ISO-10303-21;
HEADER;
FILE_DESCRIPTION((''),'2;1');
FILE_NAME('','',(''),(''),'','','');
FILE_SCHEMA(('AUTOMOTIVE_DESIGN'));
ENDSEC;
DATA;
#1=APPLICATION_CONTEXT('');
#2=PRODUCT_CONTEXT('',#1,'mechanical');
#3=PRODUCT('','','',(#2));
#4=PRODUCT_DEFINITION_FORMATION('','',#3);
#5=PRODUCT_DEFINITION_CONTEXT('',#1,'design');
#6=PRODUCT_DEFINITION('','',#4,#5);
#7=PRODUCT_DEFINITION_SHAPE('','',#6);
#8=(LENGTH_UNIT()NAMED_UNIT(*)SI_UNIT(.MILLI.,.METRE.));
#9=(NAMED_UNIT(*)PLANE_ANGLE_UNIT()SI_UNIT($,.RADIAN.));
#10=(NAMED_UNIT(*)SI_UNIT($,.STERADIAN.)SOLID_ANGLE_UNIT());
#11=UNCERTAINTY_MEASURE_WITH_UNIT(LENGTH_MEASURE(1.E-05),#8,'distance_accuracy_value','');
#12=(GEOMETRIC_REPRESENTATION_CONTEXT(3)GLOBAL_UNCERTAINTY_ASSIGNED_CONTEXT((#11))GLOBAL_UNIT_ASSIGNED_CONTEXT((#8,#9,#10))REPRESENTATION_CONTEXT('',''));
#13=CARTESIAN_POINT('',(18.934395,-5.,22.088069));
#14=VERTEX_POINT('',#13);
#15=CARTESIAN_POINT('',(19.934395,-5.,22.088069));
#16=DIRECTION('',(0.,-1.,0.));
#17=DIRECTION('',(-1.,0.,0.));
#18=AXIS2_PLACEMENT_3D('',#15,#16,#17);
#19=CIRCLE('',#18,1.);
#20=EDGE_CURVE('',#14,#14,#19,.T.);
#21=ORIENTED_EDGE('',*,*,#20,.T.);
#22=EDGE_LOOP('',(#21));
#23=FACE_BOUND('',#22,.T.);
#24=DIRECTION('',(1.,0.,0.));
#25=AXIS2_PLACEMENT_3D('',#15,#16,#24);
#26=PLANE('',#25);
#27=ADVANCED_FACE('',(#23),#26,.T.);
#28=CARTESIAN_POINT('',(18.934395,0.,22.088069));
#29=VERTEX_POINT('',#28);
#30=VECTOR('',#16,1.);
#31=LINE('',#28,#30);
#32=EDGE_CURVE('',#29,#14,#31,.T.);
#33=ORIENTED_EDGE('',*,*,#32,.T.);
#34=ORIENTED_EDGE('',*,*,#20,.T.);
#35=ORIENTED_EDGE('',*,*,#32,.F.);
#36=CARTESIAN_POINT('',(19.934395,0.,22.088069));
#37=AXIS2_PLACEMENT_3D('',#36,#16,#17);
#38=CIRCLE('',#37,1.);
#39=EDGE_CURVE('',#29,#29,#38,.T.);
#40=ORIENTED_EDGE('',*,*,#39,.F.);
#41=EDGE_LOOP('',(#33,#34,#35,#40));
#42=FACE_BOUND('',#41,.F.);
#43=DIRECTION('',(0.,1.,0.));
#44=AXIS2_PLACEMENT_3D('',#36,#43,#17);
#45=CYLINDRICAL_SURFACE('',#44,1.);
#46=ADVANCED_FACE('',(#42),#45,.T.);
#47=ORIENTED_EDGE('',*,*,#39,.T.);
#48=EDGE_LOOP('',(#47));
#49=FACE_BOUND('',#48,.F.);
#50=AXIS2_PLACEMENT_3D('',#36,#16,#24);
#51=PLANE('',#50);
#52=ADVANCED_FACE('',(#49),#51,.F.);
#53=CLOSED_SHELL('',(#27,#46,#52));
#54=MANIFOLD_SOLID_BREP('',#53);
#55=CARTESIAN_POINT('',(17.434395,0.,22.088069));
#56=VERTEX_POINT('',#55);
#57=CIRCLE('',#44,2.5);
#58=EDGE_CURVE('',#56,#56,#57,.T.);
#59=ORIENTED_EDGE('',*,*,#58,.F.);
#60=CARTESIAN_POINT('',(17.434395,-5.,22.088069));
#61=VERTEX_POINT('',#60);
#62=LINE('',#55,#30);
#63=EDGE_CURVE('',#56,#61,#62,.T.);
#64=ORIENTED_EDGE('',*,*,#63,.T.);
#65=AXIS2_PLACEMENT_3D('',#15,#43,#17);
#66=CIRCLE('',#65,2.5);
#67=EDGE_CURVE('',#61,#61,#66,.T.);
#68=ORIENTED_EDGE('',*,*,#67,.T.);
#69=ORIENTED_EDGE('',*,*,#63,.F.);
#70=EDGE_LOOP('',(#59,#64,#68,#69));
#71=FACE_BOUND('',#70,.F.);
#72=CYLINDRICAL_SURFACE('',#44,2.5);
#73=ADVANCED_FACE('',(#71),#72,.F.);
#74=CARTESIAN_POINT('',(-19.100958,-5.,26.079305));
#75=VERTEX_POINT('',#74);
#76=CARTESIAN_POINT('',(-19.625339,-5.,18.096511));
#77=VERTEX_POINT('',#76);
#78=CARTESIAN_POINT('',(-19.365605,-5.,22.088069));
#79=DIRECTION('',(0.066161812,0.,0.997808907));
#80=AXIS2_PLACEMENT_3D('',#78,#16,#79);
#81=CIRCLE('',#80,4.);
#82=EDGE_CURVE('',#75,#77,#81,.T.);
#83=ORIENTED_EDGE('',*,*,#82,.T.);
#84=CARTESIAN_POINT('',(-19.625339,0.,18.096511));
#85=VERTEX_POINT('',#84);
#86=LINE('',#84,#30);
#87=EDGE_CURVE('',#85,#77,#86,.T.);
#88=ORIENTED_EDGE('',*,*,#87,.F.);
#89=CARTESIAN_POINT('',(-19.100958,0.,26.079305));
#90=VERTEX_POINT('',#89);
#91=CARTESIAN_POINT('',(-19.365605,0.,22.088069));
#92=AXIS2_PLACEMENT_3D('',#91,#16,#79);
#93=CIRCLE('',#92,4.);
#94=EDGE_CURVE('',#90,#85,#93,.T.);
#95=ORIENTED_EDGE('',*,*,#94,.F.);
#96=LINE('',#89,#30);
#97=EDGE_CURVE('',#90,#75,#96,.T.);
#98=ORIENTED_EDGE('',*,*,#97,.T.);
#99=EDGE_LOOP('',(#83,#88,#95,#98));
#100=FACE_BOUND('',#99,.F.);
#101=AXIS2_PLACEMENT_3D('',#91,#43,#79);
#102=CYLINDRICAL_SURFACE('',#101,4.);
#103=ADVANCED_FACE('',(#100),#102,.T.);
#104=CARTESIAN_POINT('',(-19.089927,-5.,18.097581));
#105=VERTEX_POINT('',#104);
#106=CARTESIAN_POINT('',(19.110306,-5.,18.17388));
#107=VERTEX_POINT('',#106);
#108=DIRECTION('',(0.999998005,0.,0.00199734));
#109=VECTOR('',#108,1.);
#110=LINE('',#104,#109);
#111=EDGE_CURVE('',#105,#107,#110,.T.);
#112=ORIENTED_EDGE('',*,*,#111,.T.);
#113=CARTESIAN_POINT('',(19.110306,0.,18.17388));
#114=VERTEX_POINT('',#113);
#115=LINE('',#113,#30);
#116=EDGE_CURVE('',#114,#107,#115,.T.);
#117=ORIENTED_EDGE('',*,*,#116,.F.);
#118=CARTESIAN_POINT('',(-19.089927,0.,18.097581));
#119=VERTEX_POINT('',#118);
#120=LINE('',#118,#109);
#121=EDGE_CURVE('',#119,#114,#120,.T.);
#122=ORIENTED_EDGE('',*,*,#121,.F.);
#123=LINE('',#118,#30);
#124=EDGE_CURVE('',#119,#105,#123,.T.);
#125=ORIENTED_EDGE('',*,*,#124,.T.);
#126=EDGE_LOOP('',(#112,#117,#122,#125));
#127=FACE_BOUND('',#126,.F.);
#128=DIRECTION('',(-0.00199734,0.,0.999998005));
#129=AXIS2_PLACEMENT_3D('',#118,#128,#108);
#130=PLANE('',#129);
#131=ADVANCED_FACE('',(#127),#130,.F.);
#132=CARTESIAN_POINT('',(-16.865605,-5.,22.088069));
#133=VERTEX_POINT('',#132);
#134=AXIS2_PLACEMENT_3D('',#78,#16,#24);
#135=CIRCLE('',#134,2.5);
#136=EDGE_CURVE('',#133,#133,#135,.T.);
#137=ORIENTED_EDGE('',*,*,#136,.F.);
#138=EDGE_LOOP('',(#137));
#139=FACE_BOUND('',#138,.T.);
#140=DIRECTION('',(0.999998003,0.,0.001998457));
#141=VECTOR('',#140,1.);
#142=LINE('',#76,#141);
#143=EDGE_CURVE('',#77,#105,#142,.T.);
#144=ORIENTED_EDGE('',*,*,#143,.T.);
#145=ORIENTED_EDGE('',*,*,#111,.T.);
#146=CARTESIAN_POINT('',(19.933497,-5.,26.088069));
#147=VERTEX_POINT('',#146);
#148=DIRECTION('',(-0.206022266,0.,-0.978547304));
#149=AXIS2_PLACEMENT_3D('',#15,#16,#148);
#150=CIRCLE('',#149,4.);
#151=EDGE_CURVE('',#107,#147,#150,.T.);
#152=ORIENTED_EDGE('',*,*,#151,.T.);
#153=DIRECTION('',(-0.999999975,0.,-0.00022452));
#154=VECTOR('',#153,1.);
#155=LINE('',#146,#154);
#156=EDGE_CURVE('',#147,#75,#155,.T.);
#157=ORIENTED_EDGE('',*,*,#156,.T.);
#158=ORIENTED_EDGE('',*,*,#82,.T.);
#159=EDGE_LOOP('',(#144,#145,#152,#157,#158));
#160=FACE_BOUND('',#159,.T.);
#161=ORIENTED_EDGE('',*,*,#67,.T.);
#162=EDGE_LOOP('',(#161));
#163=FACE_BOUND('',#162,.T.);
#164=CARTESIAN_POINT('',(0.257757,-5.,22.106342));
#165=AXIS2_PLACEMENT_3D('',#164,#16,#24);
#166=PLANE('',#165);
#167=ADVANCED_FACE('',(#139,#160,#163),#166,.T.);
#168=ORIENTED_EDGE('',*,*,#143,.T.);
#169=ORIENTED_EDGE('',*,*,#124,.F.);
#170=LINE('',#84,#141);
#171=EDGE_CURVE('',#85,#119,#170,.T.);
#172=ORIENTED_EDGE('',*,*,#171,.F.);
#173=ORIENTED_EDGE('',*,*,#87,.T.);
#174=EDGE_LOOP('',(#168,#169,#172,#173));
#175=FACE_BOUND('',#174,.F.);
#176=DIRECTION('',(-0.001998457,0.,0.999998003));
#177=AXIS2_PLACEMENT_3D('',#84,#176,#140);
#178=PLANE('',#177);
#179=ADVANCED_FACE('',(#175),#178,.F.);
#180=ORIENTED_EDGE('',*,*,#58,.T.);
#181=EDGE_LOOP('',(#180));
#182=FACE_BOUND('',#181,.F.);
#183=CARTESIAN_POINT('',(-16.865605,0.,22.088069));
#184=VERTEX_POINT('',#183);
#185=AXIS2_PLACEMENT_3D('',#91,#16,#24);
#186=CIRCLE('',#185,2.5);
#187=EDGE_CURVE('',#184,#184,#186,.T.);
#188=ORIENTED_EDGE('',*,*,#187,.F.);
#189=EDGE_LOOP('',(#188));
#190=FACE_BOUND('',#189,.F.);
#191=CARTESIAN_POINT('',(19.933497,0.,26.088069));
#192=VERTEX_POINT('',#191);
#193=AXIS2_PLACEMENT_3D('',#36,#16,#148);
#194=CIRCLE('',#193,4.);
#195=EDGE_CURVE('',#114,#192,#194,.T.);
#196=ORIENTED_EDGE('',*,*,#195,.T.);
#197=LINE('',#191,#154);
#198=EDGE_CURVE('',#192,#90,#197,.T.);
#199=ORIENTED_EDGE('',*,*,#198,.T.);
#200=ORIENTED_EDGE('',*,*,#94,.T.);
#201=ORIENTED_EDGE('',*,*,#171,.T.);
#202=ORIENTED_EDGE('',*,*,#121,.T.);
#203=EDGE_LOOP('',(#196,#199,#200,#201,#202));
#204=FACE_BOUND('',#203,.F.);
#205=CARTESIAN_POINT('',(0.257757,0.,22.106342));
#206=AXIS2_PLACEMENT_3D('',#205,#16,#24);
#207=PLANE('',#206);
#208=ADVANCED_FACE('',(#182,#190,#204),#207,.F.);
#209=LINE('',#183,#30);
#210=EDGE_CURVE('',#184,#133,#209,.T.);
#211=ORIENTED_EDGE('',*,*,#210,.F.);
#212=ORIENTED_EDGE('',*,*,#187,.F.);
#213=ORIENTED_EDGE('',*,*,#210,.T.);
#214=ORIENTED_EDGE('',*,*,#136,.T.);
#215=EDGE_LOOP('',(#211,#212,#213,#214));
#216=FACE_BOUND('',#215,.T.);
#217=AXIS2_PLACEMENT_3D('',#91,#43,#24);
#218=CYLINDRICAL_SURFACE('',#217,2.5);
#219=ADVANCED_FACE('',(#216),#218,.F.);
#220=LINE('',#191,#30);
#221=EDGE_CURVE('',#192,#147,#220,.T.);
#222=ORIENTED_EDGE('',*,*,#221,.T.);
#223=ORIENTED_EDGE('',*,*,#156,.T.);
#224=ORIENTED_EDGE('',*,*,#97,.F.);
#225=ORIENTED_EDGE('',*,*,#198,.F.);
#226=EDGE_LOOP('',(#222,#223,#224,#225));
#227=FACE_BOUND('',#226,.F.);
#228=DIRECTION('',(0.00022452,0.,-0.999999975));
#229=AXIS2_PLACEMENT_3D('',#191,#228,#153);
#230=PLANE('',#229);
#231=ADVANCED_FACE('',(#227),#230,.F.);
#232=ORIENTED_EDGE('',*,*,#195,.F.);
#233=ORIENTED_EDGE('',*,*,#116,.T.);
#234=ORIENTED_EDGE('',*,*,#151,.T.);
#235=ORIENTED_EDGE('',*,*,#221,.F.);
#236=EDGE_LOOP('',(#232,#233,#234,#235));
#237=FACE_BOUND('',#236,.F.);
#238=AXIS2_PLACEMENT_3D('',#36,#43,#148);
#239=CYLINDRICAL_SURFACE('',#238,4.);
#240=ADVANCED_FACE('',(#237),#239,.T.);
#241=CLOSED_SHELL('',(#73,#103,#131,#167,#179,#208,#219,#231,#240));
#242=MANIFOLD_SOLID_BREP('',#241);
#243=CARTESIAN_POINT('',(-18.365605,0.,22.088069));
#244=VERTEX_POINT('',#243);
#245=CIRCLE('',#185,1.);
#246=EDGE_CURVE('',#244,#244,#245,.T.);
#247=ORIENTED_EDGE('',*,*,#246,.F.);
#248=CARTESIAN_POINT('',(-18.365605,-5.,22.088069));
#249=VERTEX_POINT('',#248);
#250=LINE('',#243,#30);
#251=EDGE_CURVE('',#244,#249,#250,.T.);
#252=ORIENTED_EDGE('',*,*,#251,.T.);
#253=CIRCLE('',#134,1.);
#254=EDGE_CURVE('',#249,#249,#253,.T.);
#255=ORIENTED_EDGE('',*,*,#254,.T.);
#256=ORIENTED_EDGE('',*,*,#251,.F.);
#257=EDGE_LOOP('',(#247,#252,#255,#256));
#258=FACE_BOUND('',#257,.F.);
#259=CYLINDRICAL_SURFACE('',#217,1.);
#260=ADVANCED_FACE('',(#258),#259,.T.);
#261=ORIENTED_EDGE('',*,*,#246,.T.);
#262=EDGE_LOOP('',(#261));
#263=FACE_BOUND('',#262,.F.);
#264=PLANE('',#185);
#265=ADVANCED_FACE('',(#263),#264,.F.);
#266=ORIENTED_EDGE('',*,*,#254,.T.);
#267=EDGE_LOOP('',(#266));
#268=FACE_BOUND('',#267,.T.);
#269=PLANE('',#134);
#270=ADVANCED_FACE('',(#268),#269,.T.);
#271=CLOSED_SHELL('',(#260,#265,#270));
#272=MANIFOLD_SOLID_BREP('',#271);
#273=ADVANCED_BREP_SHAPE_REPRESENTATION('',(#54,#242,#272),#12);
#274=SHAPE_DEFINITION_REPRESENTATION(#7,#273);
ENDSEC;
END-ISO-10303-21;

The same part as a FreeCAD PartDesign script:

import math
import FreeCAD as App
import Part
import Sketcher

V = App.Vector

doc = App.newDocument("Part")
params = doc.addObject("Spreadsheet::Sheet", "Params")
for row, (alias, value) in enumerate([
    ("sketch1_diameter", "5 mm"),
    ("sketch1_radius", "4 mm"),
    ("pad1_length", "5 mm"),
    ("sketch2_diameter", "2 mm"),
    ("pad2_length", "5 mm"),
], start=1):
    params.set(f"A{row}", alias)
    params.set(f"B{row}", "=" + value)
    params.setAlias(f"B{row}", alias)

body = doc.addObject("PartDesign::Body", "Body")

sketch1 = doc.addObject("Sketcher::SketchObject", "Sketch")
body.addObject(sketch1)
sketch1.AttachmentSupport = (doc.XZ_Plane, [""])
sketch1.MapMode = "FlatFace"
sketch1.addGeometry(Part.LineSegment(V(19.9, 26.1, 0), V(-19.1, 26.1, 0)), False)
sketch1.addGeometry(Part.ArcOfCircle(Part.Circle(V(-19.4, 22.1, 0), V(0, 0, 1), 4), math.radians(86), math.radians(266)), False)
sketch1.addGeometry(Part.LineSegment(V(-19.6, 18.1, 0), V(-19.1, 18.1, 0)), False)
sketch1.addGeometry(Part.LineSegment(V(-19.1, 18.1, 0), V(19.1, 18.2, 0)), False)
sketch1.addGeometry(Part.ArcOfCircle(Part.Circle(V(19.9, 22.1, 0), V(0, 0, 1), 4), math.radians(-102), math.radians(90)), False)
sketch1.addGeometry(Part.Circle(V(-19.4, 22.1, 0), V(0, 0, 1), 2.5), False)
sketch1.addGeometry(Part.Circle(V(19.9, 22.1, 0), V(0, 0, 1), 2.5), False)
sketch1.addConstraint(Sketcher.Constraint("Coincident", 0, 2, 1, 1))
sketch1.addConstraint(Sketcher.Constraint("Coincident", 1, 2, 2, 1))
sketch1.addConstraint(Sketcher.Constraint("Coincident", 2, 2, 3, 1))
sketch1.addConstraint(Sketcher.Constraint("Coincident", 3, 2, 4, 1))
sketch1.addConstraint(Sketcher.Constraint("Tangent", 4, 2, 0, 1))
sketch1.addConstraint(Sketcher.Constraint("Coincident", 5, 3, 1, 3))
sketch1.addConstraint(Sketcher.Constraint("Coincident", 6, 3, 4, 3))
sketch1.addConstraint(Sketcher.Constraint("Equal", 1, 4))
sketch1.addConstraint(Sketcher.Constraint("Equal", 5, 6))
sketch1.addConstraint(Sketcher.Constraint("Parallel", 2, 3))
sketch1.addConstraint(Sketcher.Constraint("Horizontal", 1, 3, 4, 3))
sketch1.addConstraint(Sketcher.Constraint("Diameter", 5, 5.0))
sketch1.addConstraint(Sketcher.Constraint("Radius", 1, 4.0))
sketch1.addConstraint(Sketcher.Constraint("DistanceX", 1, 3, 4, 3, 39.3))
sketch1.addConstraint(Sketcher.Constraint("DistanceY", 2, 2, 3, 2, 0.076299))
sketch1.addConstraint(Sketcher.Constraint("Distance", 3, 38.200309))
sketch1.addConstraint(Sketcher.Constraint("DistanceY", -1, 1, 1, 3, 22.088069))
sketch1.addConstraint(Sketcher.Constraint("DistanceX", 1, 2, -1, 1, 19.625339))
sketch1.addConstraint(Sketcher.Constraint("DistanceY", -1, 1, 1, 2, 18.096511))
sketch1.addConstraint(Sketcher.Constraint("DistanceX", 1, 2, 0, 2, 0.524381))
sketch1.setExpression("Constraints[11]", "Params.sketch1_diameter")
sketch1.setExpression("Constraints[12]", "Params.sketch1_radius")
pad1 = doc.addObject("PartDesign::Pad", "Pad")
body.addObject(pad1)
pad1.Profile = sketch1
pad1.setExpression("Length", "Params.pad1_length")
body2 = doc.addObject("PartDesign::Body", "Body001")
body2.AllowCompound = True

sketch2 = doc.addObject("Sketcher::SketchObject", "Sketch001")
body2.addObject(sketch2)
sketch2.AttachmentSupport = (doc.getObject("XZ_Plane001"), [""])
sketch2.MapMode = "FlatFace"
sketch2.addGeometry(Part.Circle(V(-19.4, 22.1, 0), V(0, 0, 1), 1), False)
sketch2.addGeometry(Part.Circle(V(19.9, 22.1, 0), V(0, 0, 1), 1), False)
sketch2.addConstraint(Sketcher.Constraint("Equal", 0, 1))
sketch2.addConstraint(Sketcher.Constraint("Horizontal", 0, 3, 1, 3))
sketch2.addConstraint(Sketcher.Constraint("Diameter", 0, 2.0))
sketch2.addConstraint(Sketcher.Constraint("DistanceX", 0, 3, 1, 3, 39.3))
sketch2.addConstraint(Sketcher.Constraint("DistanceY", -1, 1, 0, 3, 22.088069))
sketch2.addConstraint(Sketcher.Constraint("DistanceX", 0, 3, -1, 1, 19.365605))
sketch2.setExpression("Constraints[2]", "Params.sketch2_diameter")
pad2 = doc.addObject("PartDesign::Pad", "Pad001")
body2.addObject(pad2)
pad2.Profile = sketch2
pad2.setExpression("Length", "Params.pad2_length")

doc.recompute()
